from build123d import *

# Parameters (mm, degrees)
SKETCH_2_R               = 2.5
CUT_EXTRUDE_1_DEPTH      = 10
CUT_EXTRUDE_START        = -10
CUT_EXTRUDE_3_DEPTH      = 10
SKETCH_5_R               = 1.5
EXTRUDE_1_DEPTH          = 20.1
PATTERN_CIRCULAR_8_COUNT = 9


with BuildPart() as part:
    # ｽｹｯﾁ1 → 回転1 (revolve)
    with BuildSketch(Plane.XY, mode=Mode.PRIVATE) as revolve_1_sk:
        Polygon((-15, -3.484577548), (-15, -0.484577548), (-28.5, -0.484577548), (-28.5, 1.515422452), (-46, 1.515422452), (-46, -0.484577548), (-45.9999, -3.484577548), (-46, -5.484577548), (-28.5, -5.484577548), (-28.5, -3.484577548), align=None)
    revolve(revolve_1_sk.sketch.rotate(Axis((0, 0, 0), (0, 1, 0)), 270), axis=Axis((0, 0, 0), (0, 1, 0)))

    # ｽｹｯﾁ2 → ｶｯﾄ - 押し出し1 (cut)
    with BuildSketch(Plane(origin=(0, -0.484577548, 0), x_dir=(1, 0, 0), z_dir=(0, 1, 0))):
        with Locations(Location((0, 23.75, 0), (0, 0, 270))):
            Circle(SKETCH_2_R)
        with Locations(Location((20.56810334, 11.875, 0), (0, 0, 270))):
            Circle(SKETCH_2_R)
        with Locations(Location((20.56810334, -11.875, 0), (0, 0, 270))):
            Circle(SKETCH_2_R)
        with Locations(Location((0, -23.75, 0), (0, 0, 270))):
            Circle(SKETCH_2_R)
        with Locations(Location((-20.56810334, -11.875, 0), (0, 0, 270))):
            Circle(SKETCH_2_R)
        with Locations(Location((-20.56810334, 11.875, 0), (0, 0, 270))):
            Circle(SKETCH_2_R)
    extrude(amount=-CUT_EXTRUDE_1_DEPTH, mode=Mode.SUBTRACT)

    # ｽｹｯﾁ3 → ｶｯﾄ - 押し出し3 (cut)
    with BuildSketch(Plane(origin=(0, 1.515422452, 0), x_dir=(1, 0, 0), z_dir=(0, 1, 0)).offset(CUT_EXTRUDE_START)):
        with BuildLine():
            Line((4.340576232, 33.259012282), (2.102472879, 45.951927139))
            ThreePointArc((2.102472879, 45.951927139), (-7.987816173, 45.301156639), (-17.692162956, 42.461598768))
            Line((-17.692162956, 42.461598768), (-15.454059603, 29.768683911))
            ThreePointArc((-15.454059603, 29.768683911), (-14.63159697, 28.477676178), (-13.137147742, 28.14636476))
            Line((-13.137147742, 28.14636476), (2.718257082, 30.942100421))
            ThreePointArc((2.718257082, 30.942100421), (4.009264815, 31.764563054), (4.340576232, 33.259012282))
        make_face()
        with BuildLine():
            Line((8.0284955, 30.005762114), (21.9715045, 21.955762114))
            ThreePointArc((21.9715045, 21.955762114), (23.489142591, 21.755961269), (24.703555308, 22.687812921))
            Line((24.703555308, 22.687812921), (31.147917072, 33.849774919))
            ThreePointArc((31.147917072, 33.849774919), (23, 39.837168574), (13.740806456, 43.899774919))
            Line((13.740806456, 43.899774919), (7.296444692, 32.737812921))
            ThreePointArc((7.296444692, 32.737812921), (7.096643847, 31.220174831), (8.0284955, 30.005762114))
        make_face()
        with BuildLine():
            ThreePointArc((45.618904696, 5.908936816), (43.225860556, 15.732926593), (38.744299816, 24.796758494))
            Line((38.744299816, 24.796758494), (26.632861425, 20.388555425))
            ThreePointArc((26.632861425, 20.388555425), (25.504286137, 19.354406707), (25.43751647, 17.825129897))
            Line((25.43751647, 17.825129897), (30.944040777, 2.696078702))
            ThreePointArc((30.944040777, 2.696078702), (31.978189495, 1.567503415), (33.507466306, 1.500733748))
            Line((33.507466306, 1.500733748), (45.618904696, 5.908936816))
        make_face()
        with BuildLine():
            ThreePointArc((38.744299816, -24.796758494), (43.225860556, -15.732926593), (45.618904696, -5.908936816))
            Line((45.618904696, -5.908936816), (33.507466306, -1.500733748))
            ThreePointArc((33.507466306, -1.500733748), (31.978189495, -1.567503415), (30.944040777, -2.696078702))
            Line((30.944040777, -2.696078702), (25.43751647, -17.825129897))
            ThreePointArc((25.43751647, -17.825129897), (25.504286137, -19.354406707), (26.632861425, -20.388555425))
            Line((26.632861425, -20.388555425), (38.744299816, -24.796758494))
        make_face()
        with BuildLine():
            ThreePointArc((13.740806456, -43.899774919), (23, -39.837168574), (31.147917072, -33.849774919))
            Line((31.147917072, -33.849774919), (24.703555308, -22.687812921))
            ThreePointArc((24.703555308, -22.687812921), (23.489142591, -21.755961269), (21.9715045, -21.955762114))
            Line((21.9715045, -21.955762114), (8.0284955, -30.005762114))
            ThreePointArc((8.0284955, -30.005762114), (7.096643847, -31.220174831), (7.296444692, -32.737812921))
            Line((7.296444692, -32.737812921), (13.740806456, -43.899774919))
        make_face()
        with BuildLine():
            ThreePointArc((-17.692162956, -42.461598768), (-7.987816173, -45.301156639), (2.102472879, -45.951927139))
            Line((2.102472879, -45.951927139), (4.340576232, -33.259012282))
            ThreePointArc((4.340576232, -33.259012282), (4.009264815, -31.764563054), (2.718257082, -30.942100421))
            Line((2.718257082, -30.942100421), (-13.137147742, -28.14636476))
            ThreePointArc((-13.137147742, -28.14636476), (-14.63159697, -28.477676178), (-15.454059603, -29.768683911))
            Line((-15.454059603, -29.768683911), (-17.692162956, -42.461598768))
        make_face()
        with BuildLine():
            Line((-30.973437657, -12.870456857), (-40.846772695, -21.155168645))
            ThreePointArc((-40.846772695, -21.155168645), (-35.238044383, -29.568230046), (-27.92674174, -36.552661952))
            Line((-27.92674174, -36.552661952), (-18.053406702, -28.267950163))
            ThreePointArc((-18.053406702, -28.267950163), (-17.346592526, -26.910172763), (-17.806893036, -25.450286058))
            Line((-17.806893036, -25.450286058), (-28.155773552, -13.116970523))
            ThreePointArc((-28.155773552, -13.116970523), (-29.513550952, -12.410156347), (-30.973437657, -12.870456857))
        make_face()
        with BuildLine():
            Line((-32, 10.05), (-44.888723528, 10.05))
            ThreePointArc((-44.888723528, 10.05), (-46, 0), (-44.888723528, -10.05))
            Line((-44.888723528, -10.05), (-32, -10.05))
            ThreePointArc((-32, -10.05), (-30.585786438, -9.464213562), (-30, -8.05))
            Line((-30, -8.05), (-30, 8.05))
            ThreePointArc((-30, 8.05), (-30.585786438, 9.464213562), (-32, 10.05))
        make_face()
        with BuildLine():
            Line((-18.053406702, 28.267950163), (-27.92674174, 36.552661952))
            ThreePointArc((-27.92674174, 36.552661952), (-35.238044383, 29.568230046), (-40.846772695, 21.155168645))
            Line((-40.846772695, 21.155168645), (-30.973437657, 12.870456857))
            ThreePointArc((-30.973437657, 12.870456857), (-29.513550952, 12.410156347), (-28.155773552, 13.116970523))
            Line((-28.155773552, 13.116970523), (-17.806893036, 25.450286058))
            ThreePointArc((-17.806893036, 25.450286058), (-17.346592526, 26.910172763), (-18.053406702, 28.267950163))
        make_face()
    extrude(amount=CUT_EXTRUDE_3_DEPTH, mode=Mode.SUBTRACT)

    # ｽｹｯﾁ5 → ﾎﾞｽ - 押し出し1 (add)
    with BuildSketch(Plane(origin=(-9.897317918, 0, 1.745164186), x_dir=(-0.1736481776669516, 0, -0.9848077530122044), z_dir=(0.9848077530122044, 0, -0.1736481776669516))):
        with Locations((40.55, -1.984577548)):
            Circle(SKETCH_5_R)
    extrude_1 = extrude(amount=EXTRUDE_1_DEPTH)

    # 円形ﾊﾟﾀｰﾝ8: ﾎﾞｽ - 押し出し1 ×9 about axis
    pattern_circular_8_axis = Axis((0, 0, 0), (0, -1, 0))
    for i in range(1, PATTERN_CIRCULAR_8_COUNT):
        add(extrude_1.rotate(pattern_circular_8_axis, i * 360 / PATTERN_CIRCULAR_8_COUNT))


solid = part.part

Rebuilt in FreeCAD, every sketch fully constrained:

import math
import FreeCAD as App
import Part
import Sketcher
Q = App.Units.Quantity

doc = App.newDocument("Part")
body = doc.addObject("PartDesign::Body", "Body")

# Sketch on XY plane
sketch1 = body.newObject("Sketcher::SketchObject", "Sketch")
sketch1.AttachmentSupport = (doc.getObject("XY_Plane"), [""])
sketch1.MapMode = "FlatFace"
sketch1.addGeometry(Part.LineSegment(App.Vector(-15, -3.5, 0), App.Vector(-15, -0.5, 0)), False)
sketch1.addGeometry(Part.LineSegment(App.Vector(-15, -0.5, 0), App.Vector(-28.5, -0.5, 0)), False)
sketch1.addGeometry(Part.LineSegment(App.Vector(-28.5, -0.5, 0), App.Vector(-28.5, 1.5, 0)), False)
sketch1.addGeometry(Part.LineSegment(App.Vector(-28.5, 1.5, 0), App.Vector(-46, 1.5, 0)), False)
sketch1.addGeometry(Part.LineSegment(App.Vector(-46, 1.5, 0), App.Vector(-46, -0.5, 0)), False)
sketch1.addGeometry(Part.LineSegment(App.Vector(-46, -0.5, 0), App.Vector(-46, -3.5, 0)), False)
sketch1.addGeometry(Part.LineSegment(App.Vector(-46, -3.5, 0), App.Vector(-46, -5.5, 0)), False)
sketch1.addGeometry(Part.LineSegment(App.Vector(-46, -5.5, 0), App.Vector(-28.5, -5.5, 0)), False)
sketch1.addGeometry(Part.LineSegment(App.Vector(-28.5, -5.5, 0), App.Vector(-28.5, -3.5, 0)), False)
sketch1.addGeometry(Part.LineSegment(App.Vector(-28.5, -3.5, 0), App.Vector(-15, -3.5, 0)), False)
sketch1.addConstraint(Sketcher.Constraint("Coincident", 0, 2, 1, 1))
sketch1.addConstraint(Sketcher.Constraint("Coincident", 1, 2, 2, 1))
sketch1.addConstraint(Sketcher.Constraint("Coincident", 2, 2, 3, 1))
sketch1.addConstraint(Sketcher.Constraint("Coincident", 3, 2, 4, 1))
sketch1.addConstraint(Sketcher.Constraint("Coincident", 4, 2, 5, 1))
sketch1.addConstraint(Sketcher.Constraint("Coincident", 5, 2, 6, 1))
sketch1.addConstraint(Sketcher.Constraint("Coincident", 6, 2, 7, 1))
sketch1.addConstraint(Sketcher.Constraint("Coincident", 7, 2, 8, 1))
sketch1.addConstraint(Sketcher.Constraint("Coincident", 8, 2, 9, 1))
sketch1.addConstraint(Sketcher.Constraint("Coincident", 9, 2, 0, 1))
sketch1.addConstraint(Sketcher.Constraint("Vertical", 0))
sketch1.addConstraint(Sketcher.Constraint("Horizontal", 1))
sketch1.addConstraint(Sketcher.Constraint("Vertical", 2))
sketch1.addConstraint(Sketcher.Constraint("Horizontal", 3))
sketch1.addConstraint(Sketcher.Constraint("Vertical", 4))
sketch1.addConstraint(Sketcher.Constraint("Horizontal", 7))
sketch1.addConstraint(Sketcher.Constraint("Vertical", 8))
sketch1.addConstraint(Sketcher.Constraint("Horizontal", 9))
sketch1.addConstraint(Sketcher.Constraint("Horizontal", 1, 2, 4, 2))
sketch1.addConstraint(Sketcher.Constraint("Horizontal", 5, 2, 8, 2))
sketch1.addConstraint(Sketcher.Constraint("Vertical", 4, 2, 6, 2))
sketch1.addConstraint(Sketcher.Constraint("Vertical", 2, 2, 7, 2))
sketch1.addConstraint(Sketcher.Constraint("Equal", 4, 8))
sketch1.addConstraint(Sketcher.Constraint("DistanceY", 0, 1, 0, 2, Q("3 mm")))
sketch1.addConstraint(Sketcher.Constraint("DistanceY", 2, 1, 2, 2, Q("2 mm")))
sketch1.addConstraint(Sketcher.Constraint("DistanceX", 1, 2, 1, 1, Q("13.5 mm")))
sketch1.addConstraint(Sketcher.Constraint("DistanceX", 3, 2, 3, 1, Q("17.5 mm")))
sketch1.addConstraint(Sketcher.Constraint("DistanceX", 0, 2, -1, 1, Q("15 mm")))
sketch1.addConstraint(Sketcher.Constraint("DistanceX", 5, 2, -1, 1, Q("45.9999 mm")))
sketch1.addConstraint(Sketcher.Constraint("DistanceY", 0, 2, -1, 1, Q("0.484578 mm")))
revolution = body.newObject("PartDesign::Revolution", "Revolution")
revolution.Profile = sketch1
revolution.ReferenceAxis = (sketch1, ["V_Axis"])
revolution.Angle = 360

# Sketch on XZ plane
sketch2 = body.newObject("Sketcher::SketchObject", "Sketch001")
sketch2.AttachmentSupport = (doc.getObject("XZ_Plane"), [""])
sketch2.MapMode = "FlatFace"
sketch2.AttachmentOffset = App.Placement(App.Vector(0, 0, 0.484578), App.Rotation())
sketch2.addGeometry(Part.Circle(App.Vector(0, -23.8, 0), App.Vector(0, 0, 1), 2.5), False)
sketch2.addGeometry(Part.Circle(App.Vector(20.6, -11.9, 0), App.Vector(0, 0, 1), 2.5), False)
sketch2.addGeometry(Part.Circle(App.Vector(20.6, 11.9, 0), App.Vector(0, 0, 1), 2.5), False)
sketch2.addGeometry(Part.Circle(App.Vector(0, 23.8, 0), App.Vector(0, 0, 1), 2.5), False)
sketch2.addGeometry(Part.Circle(App.Vector(-20.6, 11.9, 0), App.Vector(0, 0, 1), 2.5), False)
sketch2.addGeometry(Part.Circle(App.Vector(-20.6, -11.9, 0), App.Vector(0, 0, 1), 2.5), False)
sketch2.addConstraint(Sketcher.Constraint("Equal", 0, 1))
sketch2.addConstraint(Sketcher.Constraint("Equal", 1, 2))
sketch2.addConstraint(Sketcher.Constraint("Equal", 2, 3))
sketch2.addConstraint(Sketcher.Constraint("Equal", 3, 4))
sketch2.addConstraint(Sketcher.Constraint("Equal", 4, 5))
sketch2.addConstraint(Sketcher.Constraint("Symmetric", 0, 3, 3, 3, -1, 1))
sketch2.addConstraint(Sketcher.Constraint("Symmetric", 1, 3, 4, 3, -1, 1))
sketch2.addConstraint(Sketcher.Constraint("Symmetric", 2, 3, 5, 3, -1, 1))
sketch2.addConstraint(Sketcher.Constraint("Symmetric", 2, 3, 4, 3, -2))
sketch2.addConstraint(Sketcher.Constraint("PointOnObject", 0, 3, -2))
sketch2.addConstraint(Sketcher.Constraint("Diameter", 0, Q("5 mm")))
sketch2.addConstraint(Sketcher.Constraint("DistanceY", 0, 3, 3, 3, Q("47.5 mm")))
sketch2.addConstraint(Sketcher.Constraint("DistanceY", 1, 3, 2, 3, Q("23.75 mm")))
sketch2.addConstraint(Sketcher.Constraint("DistanceX", -1, 1, 1, 3, Q("20.568103 mm")))
pocket1 = body.newObject("PartDesign::Pocket", "Pocket")
pocket1.Profile = sketch2
pocket1.Length = 10
pocket1.Reversed = True

# Sketch on XZ plane
sketch3 = body.newObject("Sketcher::SketchObject", "Sketch002")
sketch3.AttachmentSupport = (doc.getObject("XZ_Plane"), [""])
sketch3.MapMode = "FlatFace"
sketch3.AttachmentOffset = App.Placement(App.Vector(0, 0, 8.484578), App.Rotation())
sketch3.addGeometry(Part.LineSegment(App.Vector(4.3, -33.3, 0), App.Vector(2.1, -46, 0)), False)
sketch3.addGeometry(Part.ArcOfCircle(Part.Circle(App.Vector(0, 0, 0), App.Vector(0, 0, 1), 46), math.radians(-113), math.radians(-87)), False)
sketch3.addGeometry(Part.LineSegment(App.Vector(-17.7, -42.5, 0), App.Vector(-15.5, -29.8, 0)), False)
sketch3.addGeometry(Part.ArcOfCircle(Part.Circle(App.Vector(-13.5, -30.1, 0), App.Vector(0, 0, 1), 2), math.radians(80), math.radians(170)), False)
sketch3.addGeometry(Part.LineSegment(App.Vector(-13.1, -28.1, 0), App.Vector(2.7, -30.9, 0)), False)
sketch3.addGeometry(Part.ArcOfCircle(Part.Circle(App.Vector(2.4, -32.9, 0), App.Vector(0, 0, 1), 2), math.radians(-10), math.radians(80)), False)
sketch3.addGeometry(Part.LineSegment(App.Vector(8, -30, 0), App.Vector(22, -22, 0)), False)
sketch3.addGeometry(Part.ArcOfCircle(Part.Circle(App.Vector(23, -23.7, 0), App.Vector(0, 0, 1), 2), math.radians(30), math.radians(120)), False)
sketch3.addGeometry(Part.LineSegment(App.Vector(24.7, -22.7, 0), App.Vector(31.1, -33.8, 0)), False)
sketch3.addGeometry(Part.ArcOfCircle(Part.Circle(App.Vector(0, 0, 0), App.Vector(0, 0, 1), 46), math.radians(-73), math.radians(-47)), False)
sketch3.addGeometry(Part.LineSegment(App.Vector(13.7, -43.9, 0), App.Vector(7.3, -32.7, 0)), False)
sketch3.addGeometry(Part.ArcOfCircle(Part.Circle(App.Vector(9, -31.7, 0), App.Vector(0, 0, 1), 2), math.radians(120), math.radians(210)), False)
sketch3.addGeometry(Part.ArcOfCircle(Part.Circle(App.Vector(0, 0, 0), App.Vector(0, 0, 1), 46), math.radians(-33), math.radians(-7)), False)
sketch3.addGeometry(Part.LineSegment(App.Vector(38.7, -24.8, 0), App.Vector(26.6, -20.4, 0)), False)
sketch3.addGeometry(Part.ArcOfCircle(Part.Circle(App.Vector(27.3, -18.5, 0), App.Vector(0, 0, 1), 2), math.radians(160), math.radians(250)), False)
sketch3.addGeometry(Part.LineSegment(App.Vector(25.4, -17.8, 0), App.Vector(30.9, -2.7, 0)), False)
sketch3.addGeometry(Part.ArcOfCircle(Part.Circle(App.Vector(32.8, -3.4, 0), App.Vector(0, 0, 1), 2), math.radians(70), math.radians(160)), False)
sketch3.addGeometry(Part.LineSegment(App.Vector(33.5, -1.5, 0), App.Vector(45.6, -5.9, 0)), False)
sketch3.addGeometry(Part.ArcOfCircle(Part.Circle(App.Vector(0, 0, 0), App.Vector(0, 0, 1), 46), math.radians(7), math.radians(33)), False)
sketch3.addGeometry(Part.LineSegment(App.Vector(45.6, 5.9, 0), App.Vector(33.5, 1.5, 0)), False)
sketch3.addGeometry(Part.ArcOfCircle(Part.Circle(App.Vector(32.8, 3.4, 0), App.Vector(0, 0, 1), 2), math.radians(-160), math.radians(-70)), False)
sketch3.addGeometry(Part.LineSegment(App.Vector(30.9, 2.7, 0), App.Vector(25.4, 17.8, 0)), False)
sketch3.addGeometry(Part.ArcOfCircle(Part.Circle(App.Vector(27.3, 18.5, 0), App.Vector(0, 0, 1), 2), math.radians(110), math.radians(200)), False)
sketch3.addGeometry(Part.LineSegment(App.Vector(26.6, 20.4, 0), App.Vector(38.7, 24.8, 0)), False)
sketch3.addGeometry(Part.ArcOfCircle(Part.Circle(App.Vector(0, 0, 0), App.Vector(0, 0, 1), 46), math.radians(47), math.radians(73)), False)
sketch3.addGeometry(Part.LineSegment(App.Vector(31.1, 33.8, 0), App.Vector(24.7, 22.7, 0)), False)
sketch3.addGeometry(Part.ArcOfCircle(Part.Circle(App.Vector(23, 23.7, 0), App.Vector(0, 0, 1), 2), math.radians(-120), math.radians(-30)), False)
sketch3.addGeometry(Part.LineSegment(App.Vector(22, 22, 0), App.Vector(8, 30, 0)), False)
sketch3.addGeometry(Part.ArcOfCircle(Part.Circle(App.Vector(9, 31.7, 0), App.Vector(0, 0, 1), 2), math.radians(150), math.radians(240)), False)
sketch3.addGeometry(Part.LineSegment(App.Vector(7.3, 32.7, 0), App.Vector(13.7, 43.9, 0)), False)
sketch3.addGeometry(Part.ArcOfCircle(Part.Circle(App.Vector(0, 0, 0), App.Vector(0, 0, 1), 46), math.radians(87), math.radians(113)), False)
sketch3.addGeometry(Part.LineSegment(App.Vector(2.1, 46, 0), App.Vector(4.3, 33.3, 0)), False)
sketch3.addGeometry(Part.ArcOfCircle(Part.Circle(App.Vector(2.4, 32.9, 0), App.Vector(0, 0, 1), 2), math.radians(-80), math.radians(10)), False)
sketch3.addGeometry(Part.LineSegment(App.Vector(2.7, 30.9, 0), App.Vector(-13.1, 28.1, 0)), False)
sketch3.addGeometry(Part.ArcOfCircle(Part.Circle(App.Vector(-13.5, 30.1, 0), App.Vector(0, 0, 1), 2), math.radians(-170), math.radians(-80)), False)
sketch3.addGeometry(Part.LineSegment(App.Vector(-15.5, 29.8, 0), App.Vector(-17.7, 42.5, 0)), False)
sketch3.addGeometry(Part.LineSegment(App.Vector(-31, 12.9, 0), App.Vector(-40.8, 21.2, 0)), False)
sketch3.addGeometry(Part.ArcOfCircle(Part.Circle(App.Vector(0, 0, 0), App.Vector(0, 0, 1), 46), math.radians(127), math.radians(153)), False)
sketch3.addGeometry(Part.LineSegment(App.Vector(-27.9, 36.6, 0), App.Vector(-18.1, 28.3, 0)), False)
sketch3.addGeometry(Part.ArcOfCircle(Part.Circle(App.Vector(-19.3, 26.7, 0), App.Vector(0, 0, 1), 2), math.radians(-40), math.radians(50)), False)
sketch3.addGeometry(Part.LineSegment(App.Vector(-17.8, 25.5, 0), App.Vector(-28.2, 13.1, 0)), False)
sketch3.addGeometry(Part.ArcOfCircle(Part.Circle(App.Vector(-29.7, 14.4, 0), App.Vector(0, 0, 1), 2), math.radians(-130), math.radians(-40)), False)
sketch3.addGeometry(Part.LineSegment(App.Vector(-32, -10.1, 0), App.Vector(-44.9, -10.1, 0)), False)
sketch3.addGeometry(Part.ArcOfCircle(Part.Circle(App.Vector(0, 0, 0), App.Vector(0, 0, 1), 46), math.radians(167), math.radians(193)), False)
sketch3.addGeometry(Part.LineSegment(App.Vector(-44.9, 10.1, 0), App.Vector(-32, 10.1, 0)), False)
sketch3.addGeometry(Part.ArcOfCircle(Part.Circle(App.Vector(-32, 8, 0), App.Vector(0, 0, 1), 2), math.radians(0), math.radians(90)), False)
sketch3.addGeometry(Part.LineSegment(App.Vector(-30, 8.1, 0), App.Vector(-30, -8.1, 0)), False)
sketch3.addGeometry(Part.ArcOfCircle(Part.Circle(App.Vector(-32, -8, 0), App.Vector(0, 0, 1), 2), math.radians(-90), math.radians(0)), False)
sketch3.addGeometry(Part.LineSegment(App.Vector(-18.1, -28.3, 0), App.Vector(-27.9, -36.6, 0)), False)
sketch3.addGeometry(Part.ArcOfCircle(Part.Circle(App.Vector(0, 0, 0), App.Vector(0, 0, 1), 46), math.radians(-153), math.radians(-127)), False)
sketch3.addGeometry(Part.LineSegment(App.Vector(-40.8, -21.2, 0), App.Vector(-31, -12.9, 0)), False)
sketch3.addGeometry(Part.ArcOfCircle(Part.Circle(App.Vector(-29.7, -14.4, 0), App.Vector(0, 0, 1), 2), math.radians(40), math.radians(130)), False)
sketch3.addGeometry(Part.LineSegment(App.Vector(-28.2, -13.1, 0), App.Vector(-17.8, -25.5, 0)), False)
sketch3.addGeometry(Part.ArcOfCircle(Part.Circle(App.Vector(-19.3, -26.7, 0), App.Vector(0, 0, 1), 2), math.radians(-50), math.radians(40)), False)
sketch3.addConstraint(Sketcher.Constraint("Coincident", 0, 2, 1, 2))
sketch3.addConstraint(Sketcher.Constraint("Coincident", 1, 1, 2, 1))
sketch3.addConstraint(Sketcher.Constraint("Tangent", 2, 2, 3, 2))
sketch3.addConstraint(Sketcher.Constraint("Tangent", 3, 1, 4, 1))
sketch3.addConstraint(Sketcher.Constraint("Tangent", 4, 2, 5, 2))
sketch3.addConstraint(Sketcher.Constraint("Tangent", 5, 1, 0, 1))
sketch3.addConstraint(Sketcher.Constraint("Tangent", 6, 2, 7, 2))
sketch3.addConstraint(Sketcher.Constraint("Tangent", 7, 1, 8, 1))
sketch3.addConstraint(Sketcher.Constraint("Coincident", 8, 2, 9, 2))
sketch3.addConstraint(Sketcher.Constraint("Coincident", 9, 1, 10, 1))
sketch3.addConstraint(Sketcher.Constraint("Tangent", 10, 2, 11, 2))
sketch3.addConstraint(Sketcher.Constraint("Tangent", 11, 1, 6, 1))
sketch3.addConstraint(Sketcher.Constraint("Coincident", 12, 1, 13, 1))
sketch3.addConstraint(Sketcher.Constraint("Tangent", 13, 2, 14, 2))
sketch3.addConstraint(Sketcher.Constraint("Tangent", 14, 1, 15, 1))
sketch3.addConstraint(Sketcher.Constraint("Tangent", 15, 2, 16, 2))
sketch3.addConstraint(Sketcher.Constraint("Tangent", 16, 1, 17, 1))
sketch3.addConstraint(Sketcher.Constraint("Coincident", 17, 2, 12, 2))
sketch3.addConstraint(Sketcher.Constraint("Coincident", 18, 1, 19, 1))
sketch3.addConstraint(Sketcher.Constraint("Tangent", 19, 2, 20, 2))
sketch3.addConstraint(Sketcher.Constraint("Tangent", 20, 1, 21, 1))
sketch3.addConstraint(Sketcher.Constraint("Tangent", 21, 2, 22, 2))
sketch3.addConstraint(Sketcher.Constraint("Tangent", 22, 1, 23, 1))
sketch3.addConstraint(Sketcher.Constraint("Coincident", 23, 2, 18, 2))
sketch3.addConstraint(Sketcher.Constraint("Coincident", 24, 1, 25, 1))
sketch3.addConstraint(Sketcher.Constraint("Tangent", 25, 2, 26, 2))
sketch3.addConstraint(Sketcher.Constraint("Tangent", 26, 1, 27, 1))
sketch3.addConstraint(Sketcher.Constraint("Tangent", 27, 2, 28, 2))
sketch3.addConstraint(Sketcher.Constraint("Tangent", 28, 1, 29, 1))
sketch3.addConstraint(Sketcher.Constraint("Coincident", 29, 2, 24, 2))
sketch3.addConstraint(Sketcher.Constraint("Coincident", 30, 1, 31, 1))
sketch3.addConstraint(Sketcher.Constraint("Tangent", 31, 2, 32, 2))
sketch3.addConstraint(Sketcher.Constraint("Tangent", 32, 1, 33, 1))
sketch3.addConstraint(Sketcher.Constraint("Tangent", 33, 2, 34, 2))
sketch3.addConstraint(Sketcher.Constraint("Tangent", 34, 1, 35, 1))
sketch3.addConstraint(Sketcher.Constraint("Coincident", 35, 2, 30, 2))
sketch3.addConstraint(Sketcher.Constraint("Coincident", 36, 2, 37, 2))
sketch3.addConstraint(Sketcher.Constraint("Coincident", 37, 1, 38, 1))
sketch3.addConstraint(Sketcher.Constraint("Tangent", 38, 2, 39, 2))
sketch3.addConstraint(Sketcher.Constraint("Tangent", 39, 1, 40, 1))
sketch3.addConstraint(Sketcher.Constraint("Tangent", 40, 2, 41, 2))
sketch3.addConstraint(Sketcher.Constraint("Tangent", 41, 1, 36, 1))
sketch3.addConstraint(Sketcher.Constraint("Coincident", 42, 2, 43, 2))
sketch3.addConstraint(Sketcher.Constraint("Coincident", 43, 1, 44, 1))
sketch3.addConstraint(Sketcher.Constraint("Tangent", 44, 2, 45, 2))
sketch3.addConstraint(Sketcher.Constraint("Tangent", 45, 1, 46, 1))
sketch3.addConstraint(Sketcher.Constraint("Tangent", 46, 2, 47, 2))
sketch3.addConstraint(Sketcher.Constraint("Tangent", 47, 1, 42, 1))
sketch3.addConstraint(Sketcher.Constraint("Coincident", 48, 2, 49, 2))
sketch3.addConstraint(Sketcher.Constraint("Coincident", 49, 1, 50, 1))
sketch3.addConstraint(Sketcher.Constraint("Tangent", 50, 2, 51, 2))
sketch3.addConstraint(Sketcher.Constraint("Tangent", 51, 1, 52, 1))
sketch3.addConstraint(Sketcher.Constraint("Tangent", 52, 2, 53, 2))
sketch3.addConstraint(Sketcher.Constraint("Tangent", 53, 1, 48, 1))
sketch3.addConstraint(Sketcher.Constraint("Horizontal", 42))
sketch3.addConstraint(Sketcher.Constraint("Horizontal", 44))
sketch3.addConstraint(Sketcher.Constraint("Vertical", 46))
sketch3.addConstraint(Sketcher.Constraint("Coincident", 1, 3, -1, 1))
sketch3.addConstraint(Sketcher.Constraint("Coincident", 9, 3, -1, 1))
sketch3.addConstraint(Sketcher.Constraint("Coincident", 12, 3, -1, 1))
sketch3.addConstraint(Sketcher.Constraint("Coincident", 18, 3, -1, 1))
sketch3.addConstraint(Sketcher.Constraint("Coincident", 24, 3, -1, 1))
sketch3.addConstraint(Sketcher.Constraint("Coincident", 30, 3, -1, 1))
sketch3.addConstraint(Sketcher.Constraint("Coincident", 37, 3, -1, 1))
sketch3.addConstraint(Sketcher.Constraint("Coincident", 43, 3, -1, 1))
sketch3.addConstraint(Sketcher.Constraint("Coincident", 49, 3, -1, 1))
sketch3.addConstraint(Sketcher.Constraint("Equal", 3, 5))
sketch3.addConstraint(Sketcher.Constraint("Equal", 5, 7))
sketch3.addConstraint(Sketcher.Constraint("Equal", 1, 9))
sketch3.addConstraint(Sketcher.Constraint("Equal", 7, 11))
sketch3.addConstraint(Sketcher.Constraint("Equal", 9, 12))
sketch3.addConstraint(Sketcher.Constraint("Equal", 11, 14))
sketch3.addConstraint(Sketcher.Constraint("Equal", 14, 16))
sketch3.addConstraint(Sketcher.Constraint("Equal", 12, 18))
sketch3.addConstraint(Sketcher.Constraint("Equal", 16, 20))
sketch3.addConstraint(Sketcher.Constraint("Equal", 20, 22))
sketch3.addConstraint(Sketcher.Constraint("Equal", 18, 24))
sketch3.addConstraint(Sketcher.Constraint("Equal", 22, 26))
sketch3.addConstraint(Sketcher.Constraint("Equal", 26, 28))
sketch3.addConstraint(Sketcher.Constraint("Equal", 24, 30))
sketch3.addConstraint(Sketcher.Constraint("Equal", 28, 32))
sketch3.addConstraint(Sketcher.Constraint("Equal", 32, 34))
sketch3.addConstraint(Sketcher.Constraint("Equal", 30, 37))
sketch3.addConstraint(Sketcher.Constraint("Equal", 34, 39))
sketch3.addConstraint(Sketcher.Constraint("Equal", 39, 41))
sketch3.addConstraint(Sketcher.Constraint("Equal", 37, 43))
sketch3.addConstraint(Sketcher.Constraint("Equal", 41, 45))
sketch3.addConstraint(Sketcher.Constraint("Equal", 45, 47))
sketch3.addConstraint(Sketcher.Constraint("Equal", 43, 49))
sketch3.addConstraint(Sketcher.Constraint("Equal", 47, 51))
sketch3.addConstraint(Sketcher.Constraint("Equal", 51, 53))
sketch3.addConstraint(Sketcher.Constraint("Symmetric", 16, 3, 20, 3, -1))
sketch3.addConstraint(Sketcher.Constraint("Symmetric", 14, 3, 22, 3, -1))
sketch3.addConstraint(Sketcher.Constraint("Symmetric", 7, 3, 26, 3, -1))
sketch3.addConstraint(Sketcher.Constraint("Symmetric", 11, 3, 28, 3, -1))
sketch3.addConstraint(Sketcher.Constraint("Symmetric", 5, 3, 32, 3, -1))
sketch3.addConstraint(Sketcher.Constraint("Symmetric", 3, 3, 34, 3, -1))
sketch3.addConstraint(Sketcher.Constraint("Symmetric", 41, 3, 51, 3, -1))
sketch3.addConstraint(Sketcher.Constraint("Symmetric", 39, 3, 53, 3, -1))
sketch3.addConstraint(Sketcher.Constraint("Parallel", 0, 2))
sketch3.addConstraint(Sketcher.Constraint("Perpendicular", 2, 4))
sketch3.addConstraint(Sketcher.Constraint("Perpendicular", 6, 8))
sketch3.addConstraint(Sketcher.Constraint("Parallel", 8, 10))
sketch3.addConstraint(Sketcher.Constraint("Perpendicular", 13, 15))
sketch3.addConstraint(Sketcher.Constraint("Perpendicular", 15, 17))
sketch3.addConstraint(Sketcher.Constraint("Perpendicular", 19, 21))
sketch3.addConstraint(Sketcher.Constraint("Perpendicular", 21, 23))
sketch3.addConstraint(Sketcher.Constraint("Perpendicular", 25, 27))
sketch3.addConstraint(Sketcher.Constraint("Perpendicular", 27, 29))
sketch3.addConstraint(Sketcher.Constraint("Perpendicular", 31, 33))
sketch3.addConstraint(Sketcher.Constraint("Perpendicular", 33, 35))
sketch3.addConstraint(Sketcher.Constraint("Parallel", 36, 38))
sketch3.addConstraint(Sketcher.Constraint("Perpendicular", 38, 40))
sketch3.addConstraint(Sketcher.Constraint("Parallel", 48, 50))
sketch3.addConstraint(Sketcher.Constraint("Perpendicular", 50, 52))
sketch3.addConstraint(Sketcher.Constraint("Vertical", 42, 2, 43, 1))
sketch3.addConstraint(Sketcher.Constraint("Equal", 0, 2))
sketch3.addConstraint(Sketcher.Constraint("Equal", 4, 6))
sketch3.addConstraint(Sketcher.Constraint("Equal", 2, 8))
sketch3.addConstraint(Sketcher.Constraint("Equal", 8, 10))
sketch3.addConstraint(Sketcher.Constraint("Equal", 10, 13))
sketch3.addConstraint(Sketcher.Constraint("Equal", 6, 15))
sketch3.addConstraint(Sketcher.Constraint("Equal", 13, 17))
sketch3.addConstraint(Sketcher.Constraint("Equal", 35, 36))
sketch3.addConstraint(Sketcher.Constraint("Equal", 36, 38))
sketch3.addConstraint(Sketcher.Constraint("Equal", 33, 40))
sketch3.addConstraint(Sketcher.Constraint("Radius", 1, Q("46 mm")))
sketch3.addConstraint(Sketcher.Constraint("Radius", 3, Q("2 mm")))
sketch3.addConstraint(Sketcher.Constraint("Angle", 0, Q("-100 deg")))
sketch3.addConstraint(Sketcher.Constraint("Angle", 6, Q("30 deg")))
sketch3.addConstraint(Sketcher.Constraint("Angle", 13, Q("160 deg")))
sketch3.addConstraint(Sketcher.Constraint("Angle", 36, Q("140 deg")))
sketch3.addConstraint(Sketcher.Constraint("DistanceY", 46, 2, 46, 1, Q("16.1 mm")))
sketch3.addConstraint(Sketcher.Constraint("DistanceX", 45, 3, -1, 1, Q("32 mm")))
sketch3.addConstraint(Sketcher.Constraint("Distance", 4, Q("16.1 mm")))
sketch3.addConstraint(Sketcher.Constraint("DistanceX", -1, 1, 14, 3, Q("27.316902 mm")))
pocket2 = body.newObject("PartDesign::Pocket", "Pocket001")
pocket2.Profile = sketch3
pocket2.Length = 10

# Sketch on an angled plane
sketch4 = body.newObject("Sketcher::SketchObject", "Sketch003")
sketch4.Placement = App.Placement(App.Vector(-9.897318, 0, 1.745164), App.Rotation(App.Vector(-0.173648178, 0, -0.984807753), App.Vector(0, 1, 0), App.Vector(0.984807753, 0, -0.173648178), "ZXY"))
sketch4.addGeometry(Part.Circle(App.Vector(40.6, -2, 0), App.Vector(0, 0, 1), 1.5), False)
sketch4.addConstraint(Sketcher.Constraint("Diameter", 0, Q("3 mm")))
sketch4.addConstraint(Sketcher.Constraint("DistanceX", -1, 1, 0, 3, Q("40.55 mm")))
sketch4.addConstraint(Sketcher.Constraint("DistanceY", 0, 3, -1, 1, Q("1.984578 mm")))
pad1 = body.newObject("PartDesign::Pad", "Pad")
pad1.Profile = sketch4
pad1.Length = 20.1
doc.recompute()

polarpattern = body.newObject("PartDesign::PolarPattern", "PolarPattern")
polarpattern.Originals = [pad1]
polarpattern.Axis = (doc.getObject("Y_Axis"), [""])
polarpattern.Angle = 360
polarpattern.Occurrences = 9
body.Tip = polarpattern

doc.recompute()
